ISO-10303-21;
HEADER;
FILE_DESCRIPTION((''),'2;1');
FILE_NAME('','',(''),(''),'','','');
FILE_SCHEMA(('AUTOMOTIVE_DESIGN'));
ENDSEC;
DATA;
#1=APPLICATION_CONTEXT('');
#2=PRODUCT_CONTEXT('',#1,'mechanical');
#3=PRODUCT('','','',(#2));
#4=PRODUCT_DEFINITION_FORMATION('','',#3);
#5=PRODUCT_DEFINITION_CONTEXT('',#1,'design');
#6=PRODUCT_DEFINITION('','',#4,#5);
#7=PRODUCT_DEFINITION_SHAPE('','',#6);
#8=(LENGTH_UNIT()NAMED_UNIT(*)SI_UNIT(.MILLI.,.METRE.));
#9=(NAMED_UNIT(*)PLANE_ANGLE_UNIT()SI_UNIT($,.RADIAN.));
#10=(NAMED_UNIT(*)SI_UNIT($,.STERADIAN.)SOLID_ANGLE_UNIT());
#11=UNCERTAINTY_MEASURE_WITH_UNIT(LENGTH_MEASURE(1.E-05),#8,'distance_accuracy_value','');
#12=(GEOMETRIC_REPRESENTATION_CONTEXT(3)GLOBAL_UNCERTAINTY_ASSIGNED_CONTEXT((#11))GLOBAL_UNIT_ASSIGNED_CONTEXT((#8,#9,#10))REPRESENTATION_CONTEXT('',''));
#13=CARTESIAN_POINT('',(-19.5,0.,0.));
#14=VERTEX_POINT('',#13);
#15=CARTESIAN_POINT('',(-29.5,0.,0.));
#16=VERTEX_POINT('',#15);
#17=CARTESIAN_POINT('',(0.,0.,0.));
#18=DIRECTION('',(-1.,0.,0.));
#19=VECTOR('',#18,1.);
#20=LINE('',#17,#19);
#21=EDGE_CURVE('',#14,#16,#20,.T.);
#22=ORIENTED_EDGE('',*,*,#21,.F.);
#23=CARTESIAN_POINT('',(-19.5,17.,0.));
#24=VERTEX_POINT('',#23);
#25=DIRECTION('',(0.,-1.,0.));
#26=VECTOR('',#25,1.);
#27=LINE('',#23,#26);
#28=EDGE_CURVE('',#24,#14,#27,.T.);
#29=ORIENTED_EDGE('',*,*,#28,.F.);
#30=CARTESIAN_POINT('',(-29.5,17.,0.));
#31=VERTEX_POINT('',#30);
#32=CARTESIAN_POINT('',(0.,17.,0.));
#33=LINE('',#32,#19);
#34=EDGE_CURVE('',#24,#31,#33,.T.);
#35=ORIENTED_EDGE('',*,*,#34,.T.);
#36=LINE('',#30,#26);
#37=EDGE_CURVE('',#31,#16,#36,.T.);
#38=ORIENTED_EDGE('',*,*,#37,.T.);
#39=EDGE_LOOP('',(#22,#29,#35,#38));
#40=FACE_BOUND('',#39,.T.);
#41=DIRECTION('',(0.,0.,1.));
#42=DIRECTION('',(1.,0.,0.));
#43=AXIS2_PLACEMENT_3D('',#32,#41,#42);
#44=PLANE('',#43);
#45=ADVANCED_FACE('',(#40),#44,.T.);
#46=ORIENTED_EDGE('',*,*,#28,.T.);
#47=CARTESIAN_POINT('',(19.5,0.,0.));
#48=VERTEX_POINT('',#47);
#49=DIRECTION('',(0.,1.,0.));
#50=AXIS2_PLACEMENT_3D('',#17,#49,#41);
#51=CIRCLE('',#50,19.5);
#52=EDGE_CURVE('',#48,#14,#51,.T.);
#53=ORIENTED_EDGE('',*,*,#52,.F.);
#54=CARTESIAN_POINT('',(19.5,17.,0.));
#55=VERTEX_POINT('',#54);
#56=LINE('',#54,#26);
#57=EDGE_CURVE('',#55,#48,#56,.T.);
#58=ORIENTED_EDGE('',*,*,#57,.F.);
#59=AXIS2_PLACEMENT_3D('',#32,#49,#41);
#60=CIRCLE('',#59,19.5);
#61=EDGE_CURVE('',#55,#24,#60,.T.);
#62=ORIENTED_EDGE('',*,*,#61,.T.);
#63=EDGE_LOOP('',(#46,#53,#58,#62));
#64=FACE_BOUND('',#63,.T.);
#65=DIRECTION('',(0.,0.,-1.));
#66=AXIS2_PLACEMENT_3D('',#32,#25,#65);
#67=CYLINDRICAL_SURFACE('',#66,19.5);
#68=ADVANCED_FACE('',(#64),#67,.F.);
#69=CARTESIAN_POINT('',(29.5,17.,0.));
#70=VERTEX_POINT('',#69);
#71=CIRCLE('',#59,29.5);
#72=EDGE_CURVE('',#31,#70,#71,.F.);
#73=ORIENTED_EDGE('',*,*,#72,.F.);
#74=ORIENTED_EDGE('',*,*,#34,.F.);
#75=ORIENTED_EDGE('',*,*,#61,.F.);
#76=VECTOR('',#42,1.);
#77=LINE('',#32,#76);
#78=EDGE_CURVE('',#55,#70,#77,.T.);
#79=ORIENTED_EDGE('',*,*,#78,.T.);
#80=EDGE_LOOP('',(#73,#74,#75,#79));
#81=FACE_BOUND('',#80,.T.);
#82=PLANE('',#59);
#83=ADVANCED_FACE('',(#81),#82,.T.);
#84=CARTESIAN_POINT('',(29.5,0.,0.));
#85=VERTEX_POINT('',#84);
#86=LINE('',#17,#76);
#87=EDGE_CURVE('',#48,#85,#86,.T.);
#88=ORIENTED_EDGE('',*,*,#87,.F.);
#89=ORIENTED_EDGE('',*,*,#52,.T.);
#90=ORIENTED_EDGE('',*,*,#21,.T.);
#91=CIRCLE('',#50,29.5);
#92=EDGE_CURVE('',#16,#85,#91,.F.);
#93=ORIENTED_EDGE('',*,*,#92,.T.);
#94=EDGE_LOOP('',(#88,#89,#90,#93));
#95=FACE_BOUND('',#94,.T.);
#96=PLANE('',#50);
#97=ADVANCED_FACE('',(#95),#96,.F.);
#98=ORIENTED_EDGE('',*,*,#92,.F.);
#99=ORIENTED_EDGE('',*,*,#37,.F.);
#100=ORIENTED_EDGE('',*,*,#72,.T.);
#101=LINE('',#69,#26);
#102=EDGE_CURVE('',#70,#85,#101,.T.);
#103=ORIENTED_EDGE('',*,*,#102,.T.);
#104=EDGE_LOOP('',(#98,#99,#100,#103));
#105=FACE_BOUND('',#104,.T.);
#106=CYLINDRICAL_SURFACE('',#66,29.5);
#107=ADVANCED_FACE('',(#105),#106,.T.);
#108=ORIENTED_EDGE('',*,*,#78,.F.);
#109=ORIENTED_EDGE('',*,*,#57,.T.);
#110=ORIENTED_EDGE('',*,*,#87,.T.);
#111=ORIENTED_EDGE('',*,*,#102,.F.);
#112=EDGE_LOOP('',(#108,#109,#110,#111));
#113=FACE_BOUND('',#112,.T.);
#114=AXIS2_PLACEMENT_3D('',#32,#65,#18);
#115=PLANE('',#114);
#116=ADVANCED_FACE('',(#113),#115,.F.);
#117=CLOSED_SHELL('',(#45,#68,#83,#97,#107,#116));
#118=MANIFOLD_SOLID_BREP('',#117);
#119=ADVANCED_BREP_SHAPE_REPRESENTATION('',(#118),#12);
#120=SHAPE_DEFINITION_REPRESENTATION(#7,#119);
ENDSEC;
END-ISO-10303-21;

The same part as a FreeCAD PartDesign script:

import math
import FreeCAD as App
import Part
import Sketcher

V = App.Vector

doc = App.newDocument("Part")
body = doc.addObject("PartDesign::Body", "Body")

# Sketch on XZ plane
sketch1 = doc.addObject("Sketcher::SketchObject", "Sketch")
body.addObject(sketch1)
sketch1.AttachmentSupport = (doc.XZ_Plane, [""])
sketch1.MapMode = "FlatFace"
sketch1.addGeometry(Part.ArcOfCircle(Part.Circle(V(0, 0, 0), V(0, 0, 1), 30), math.radians(180), math.radians(360)), False)
sketch1.addGeometry(Part.LineSegment(V(-30, 0, 0), V(-20, 0, 0)), False)
sketch1.addGeometry(Part.ArcOfCircle(Part.Circle(V(0, 0, 0), V(0, 0, 1), 20), math.radians(180), math.radians(360)), False)
sketch1.addGeometry(Part.LineSegment(V(20, 0, 0), V(30, 0, 0)), False)
sketch1.addConstraint(Sketcher.Constraint("Coincident", 0, 1, 1, 1))
sketch1.addConstraint(Sketcher.Constraint("Coincident", 1, 2, 2, 1))
sketch1.addConstraint(Sketcher.Constraint("Coincident", 2, 2, 3, 1))
sketch1.addConstraint(Sketcher.Constraint("Coincident", 3, 2, 0, 2))
sketch1.addConstraint(Sketcher.Constraint("Horizontal", 1))
sketch1.addConstraint(Sketcher.Constraint("Horizontal", 3))
sketch1.addConstraint(Sketcher.Constraint("Coincident", 0, 3, -1, 1))
sketch1.addConstraint(Sketcher.Constraint("Coincident", 2, 3, -1, 1))
sketch1.addConstraint(Sketcher.Constraint("PointOnObject", 0, 1, -1))
sketch1.addConstraint(Sketcher.Constraint("PointOnObject", 2, 2, -1))
sketch1.addConstraint(Sketcher.Constraint("Radius", 0, 29.5))
sketch1.addConstraint(Sketcher.Constraint("Radius", 2, 19.5))
pad1 = doc.addObject("PartDesign::Pad", "Pad")
body.addObject(pad1)
pad1.Profile = sketch1
pad1.Length = 17
pad1.Reversed = True

doc.recompute()
